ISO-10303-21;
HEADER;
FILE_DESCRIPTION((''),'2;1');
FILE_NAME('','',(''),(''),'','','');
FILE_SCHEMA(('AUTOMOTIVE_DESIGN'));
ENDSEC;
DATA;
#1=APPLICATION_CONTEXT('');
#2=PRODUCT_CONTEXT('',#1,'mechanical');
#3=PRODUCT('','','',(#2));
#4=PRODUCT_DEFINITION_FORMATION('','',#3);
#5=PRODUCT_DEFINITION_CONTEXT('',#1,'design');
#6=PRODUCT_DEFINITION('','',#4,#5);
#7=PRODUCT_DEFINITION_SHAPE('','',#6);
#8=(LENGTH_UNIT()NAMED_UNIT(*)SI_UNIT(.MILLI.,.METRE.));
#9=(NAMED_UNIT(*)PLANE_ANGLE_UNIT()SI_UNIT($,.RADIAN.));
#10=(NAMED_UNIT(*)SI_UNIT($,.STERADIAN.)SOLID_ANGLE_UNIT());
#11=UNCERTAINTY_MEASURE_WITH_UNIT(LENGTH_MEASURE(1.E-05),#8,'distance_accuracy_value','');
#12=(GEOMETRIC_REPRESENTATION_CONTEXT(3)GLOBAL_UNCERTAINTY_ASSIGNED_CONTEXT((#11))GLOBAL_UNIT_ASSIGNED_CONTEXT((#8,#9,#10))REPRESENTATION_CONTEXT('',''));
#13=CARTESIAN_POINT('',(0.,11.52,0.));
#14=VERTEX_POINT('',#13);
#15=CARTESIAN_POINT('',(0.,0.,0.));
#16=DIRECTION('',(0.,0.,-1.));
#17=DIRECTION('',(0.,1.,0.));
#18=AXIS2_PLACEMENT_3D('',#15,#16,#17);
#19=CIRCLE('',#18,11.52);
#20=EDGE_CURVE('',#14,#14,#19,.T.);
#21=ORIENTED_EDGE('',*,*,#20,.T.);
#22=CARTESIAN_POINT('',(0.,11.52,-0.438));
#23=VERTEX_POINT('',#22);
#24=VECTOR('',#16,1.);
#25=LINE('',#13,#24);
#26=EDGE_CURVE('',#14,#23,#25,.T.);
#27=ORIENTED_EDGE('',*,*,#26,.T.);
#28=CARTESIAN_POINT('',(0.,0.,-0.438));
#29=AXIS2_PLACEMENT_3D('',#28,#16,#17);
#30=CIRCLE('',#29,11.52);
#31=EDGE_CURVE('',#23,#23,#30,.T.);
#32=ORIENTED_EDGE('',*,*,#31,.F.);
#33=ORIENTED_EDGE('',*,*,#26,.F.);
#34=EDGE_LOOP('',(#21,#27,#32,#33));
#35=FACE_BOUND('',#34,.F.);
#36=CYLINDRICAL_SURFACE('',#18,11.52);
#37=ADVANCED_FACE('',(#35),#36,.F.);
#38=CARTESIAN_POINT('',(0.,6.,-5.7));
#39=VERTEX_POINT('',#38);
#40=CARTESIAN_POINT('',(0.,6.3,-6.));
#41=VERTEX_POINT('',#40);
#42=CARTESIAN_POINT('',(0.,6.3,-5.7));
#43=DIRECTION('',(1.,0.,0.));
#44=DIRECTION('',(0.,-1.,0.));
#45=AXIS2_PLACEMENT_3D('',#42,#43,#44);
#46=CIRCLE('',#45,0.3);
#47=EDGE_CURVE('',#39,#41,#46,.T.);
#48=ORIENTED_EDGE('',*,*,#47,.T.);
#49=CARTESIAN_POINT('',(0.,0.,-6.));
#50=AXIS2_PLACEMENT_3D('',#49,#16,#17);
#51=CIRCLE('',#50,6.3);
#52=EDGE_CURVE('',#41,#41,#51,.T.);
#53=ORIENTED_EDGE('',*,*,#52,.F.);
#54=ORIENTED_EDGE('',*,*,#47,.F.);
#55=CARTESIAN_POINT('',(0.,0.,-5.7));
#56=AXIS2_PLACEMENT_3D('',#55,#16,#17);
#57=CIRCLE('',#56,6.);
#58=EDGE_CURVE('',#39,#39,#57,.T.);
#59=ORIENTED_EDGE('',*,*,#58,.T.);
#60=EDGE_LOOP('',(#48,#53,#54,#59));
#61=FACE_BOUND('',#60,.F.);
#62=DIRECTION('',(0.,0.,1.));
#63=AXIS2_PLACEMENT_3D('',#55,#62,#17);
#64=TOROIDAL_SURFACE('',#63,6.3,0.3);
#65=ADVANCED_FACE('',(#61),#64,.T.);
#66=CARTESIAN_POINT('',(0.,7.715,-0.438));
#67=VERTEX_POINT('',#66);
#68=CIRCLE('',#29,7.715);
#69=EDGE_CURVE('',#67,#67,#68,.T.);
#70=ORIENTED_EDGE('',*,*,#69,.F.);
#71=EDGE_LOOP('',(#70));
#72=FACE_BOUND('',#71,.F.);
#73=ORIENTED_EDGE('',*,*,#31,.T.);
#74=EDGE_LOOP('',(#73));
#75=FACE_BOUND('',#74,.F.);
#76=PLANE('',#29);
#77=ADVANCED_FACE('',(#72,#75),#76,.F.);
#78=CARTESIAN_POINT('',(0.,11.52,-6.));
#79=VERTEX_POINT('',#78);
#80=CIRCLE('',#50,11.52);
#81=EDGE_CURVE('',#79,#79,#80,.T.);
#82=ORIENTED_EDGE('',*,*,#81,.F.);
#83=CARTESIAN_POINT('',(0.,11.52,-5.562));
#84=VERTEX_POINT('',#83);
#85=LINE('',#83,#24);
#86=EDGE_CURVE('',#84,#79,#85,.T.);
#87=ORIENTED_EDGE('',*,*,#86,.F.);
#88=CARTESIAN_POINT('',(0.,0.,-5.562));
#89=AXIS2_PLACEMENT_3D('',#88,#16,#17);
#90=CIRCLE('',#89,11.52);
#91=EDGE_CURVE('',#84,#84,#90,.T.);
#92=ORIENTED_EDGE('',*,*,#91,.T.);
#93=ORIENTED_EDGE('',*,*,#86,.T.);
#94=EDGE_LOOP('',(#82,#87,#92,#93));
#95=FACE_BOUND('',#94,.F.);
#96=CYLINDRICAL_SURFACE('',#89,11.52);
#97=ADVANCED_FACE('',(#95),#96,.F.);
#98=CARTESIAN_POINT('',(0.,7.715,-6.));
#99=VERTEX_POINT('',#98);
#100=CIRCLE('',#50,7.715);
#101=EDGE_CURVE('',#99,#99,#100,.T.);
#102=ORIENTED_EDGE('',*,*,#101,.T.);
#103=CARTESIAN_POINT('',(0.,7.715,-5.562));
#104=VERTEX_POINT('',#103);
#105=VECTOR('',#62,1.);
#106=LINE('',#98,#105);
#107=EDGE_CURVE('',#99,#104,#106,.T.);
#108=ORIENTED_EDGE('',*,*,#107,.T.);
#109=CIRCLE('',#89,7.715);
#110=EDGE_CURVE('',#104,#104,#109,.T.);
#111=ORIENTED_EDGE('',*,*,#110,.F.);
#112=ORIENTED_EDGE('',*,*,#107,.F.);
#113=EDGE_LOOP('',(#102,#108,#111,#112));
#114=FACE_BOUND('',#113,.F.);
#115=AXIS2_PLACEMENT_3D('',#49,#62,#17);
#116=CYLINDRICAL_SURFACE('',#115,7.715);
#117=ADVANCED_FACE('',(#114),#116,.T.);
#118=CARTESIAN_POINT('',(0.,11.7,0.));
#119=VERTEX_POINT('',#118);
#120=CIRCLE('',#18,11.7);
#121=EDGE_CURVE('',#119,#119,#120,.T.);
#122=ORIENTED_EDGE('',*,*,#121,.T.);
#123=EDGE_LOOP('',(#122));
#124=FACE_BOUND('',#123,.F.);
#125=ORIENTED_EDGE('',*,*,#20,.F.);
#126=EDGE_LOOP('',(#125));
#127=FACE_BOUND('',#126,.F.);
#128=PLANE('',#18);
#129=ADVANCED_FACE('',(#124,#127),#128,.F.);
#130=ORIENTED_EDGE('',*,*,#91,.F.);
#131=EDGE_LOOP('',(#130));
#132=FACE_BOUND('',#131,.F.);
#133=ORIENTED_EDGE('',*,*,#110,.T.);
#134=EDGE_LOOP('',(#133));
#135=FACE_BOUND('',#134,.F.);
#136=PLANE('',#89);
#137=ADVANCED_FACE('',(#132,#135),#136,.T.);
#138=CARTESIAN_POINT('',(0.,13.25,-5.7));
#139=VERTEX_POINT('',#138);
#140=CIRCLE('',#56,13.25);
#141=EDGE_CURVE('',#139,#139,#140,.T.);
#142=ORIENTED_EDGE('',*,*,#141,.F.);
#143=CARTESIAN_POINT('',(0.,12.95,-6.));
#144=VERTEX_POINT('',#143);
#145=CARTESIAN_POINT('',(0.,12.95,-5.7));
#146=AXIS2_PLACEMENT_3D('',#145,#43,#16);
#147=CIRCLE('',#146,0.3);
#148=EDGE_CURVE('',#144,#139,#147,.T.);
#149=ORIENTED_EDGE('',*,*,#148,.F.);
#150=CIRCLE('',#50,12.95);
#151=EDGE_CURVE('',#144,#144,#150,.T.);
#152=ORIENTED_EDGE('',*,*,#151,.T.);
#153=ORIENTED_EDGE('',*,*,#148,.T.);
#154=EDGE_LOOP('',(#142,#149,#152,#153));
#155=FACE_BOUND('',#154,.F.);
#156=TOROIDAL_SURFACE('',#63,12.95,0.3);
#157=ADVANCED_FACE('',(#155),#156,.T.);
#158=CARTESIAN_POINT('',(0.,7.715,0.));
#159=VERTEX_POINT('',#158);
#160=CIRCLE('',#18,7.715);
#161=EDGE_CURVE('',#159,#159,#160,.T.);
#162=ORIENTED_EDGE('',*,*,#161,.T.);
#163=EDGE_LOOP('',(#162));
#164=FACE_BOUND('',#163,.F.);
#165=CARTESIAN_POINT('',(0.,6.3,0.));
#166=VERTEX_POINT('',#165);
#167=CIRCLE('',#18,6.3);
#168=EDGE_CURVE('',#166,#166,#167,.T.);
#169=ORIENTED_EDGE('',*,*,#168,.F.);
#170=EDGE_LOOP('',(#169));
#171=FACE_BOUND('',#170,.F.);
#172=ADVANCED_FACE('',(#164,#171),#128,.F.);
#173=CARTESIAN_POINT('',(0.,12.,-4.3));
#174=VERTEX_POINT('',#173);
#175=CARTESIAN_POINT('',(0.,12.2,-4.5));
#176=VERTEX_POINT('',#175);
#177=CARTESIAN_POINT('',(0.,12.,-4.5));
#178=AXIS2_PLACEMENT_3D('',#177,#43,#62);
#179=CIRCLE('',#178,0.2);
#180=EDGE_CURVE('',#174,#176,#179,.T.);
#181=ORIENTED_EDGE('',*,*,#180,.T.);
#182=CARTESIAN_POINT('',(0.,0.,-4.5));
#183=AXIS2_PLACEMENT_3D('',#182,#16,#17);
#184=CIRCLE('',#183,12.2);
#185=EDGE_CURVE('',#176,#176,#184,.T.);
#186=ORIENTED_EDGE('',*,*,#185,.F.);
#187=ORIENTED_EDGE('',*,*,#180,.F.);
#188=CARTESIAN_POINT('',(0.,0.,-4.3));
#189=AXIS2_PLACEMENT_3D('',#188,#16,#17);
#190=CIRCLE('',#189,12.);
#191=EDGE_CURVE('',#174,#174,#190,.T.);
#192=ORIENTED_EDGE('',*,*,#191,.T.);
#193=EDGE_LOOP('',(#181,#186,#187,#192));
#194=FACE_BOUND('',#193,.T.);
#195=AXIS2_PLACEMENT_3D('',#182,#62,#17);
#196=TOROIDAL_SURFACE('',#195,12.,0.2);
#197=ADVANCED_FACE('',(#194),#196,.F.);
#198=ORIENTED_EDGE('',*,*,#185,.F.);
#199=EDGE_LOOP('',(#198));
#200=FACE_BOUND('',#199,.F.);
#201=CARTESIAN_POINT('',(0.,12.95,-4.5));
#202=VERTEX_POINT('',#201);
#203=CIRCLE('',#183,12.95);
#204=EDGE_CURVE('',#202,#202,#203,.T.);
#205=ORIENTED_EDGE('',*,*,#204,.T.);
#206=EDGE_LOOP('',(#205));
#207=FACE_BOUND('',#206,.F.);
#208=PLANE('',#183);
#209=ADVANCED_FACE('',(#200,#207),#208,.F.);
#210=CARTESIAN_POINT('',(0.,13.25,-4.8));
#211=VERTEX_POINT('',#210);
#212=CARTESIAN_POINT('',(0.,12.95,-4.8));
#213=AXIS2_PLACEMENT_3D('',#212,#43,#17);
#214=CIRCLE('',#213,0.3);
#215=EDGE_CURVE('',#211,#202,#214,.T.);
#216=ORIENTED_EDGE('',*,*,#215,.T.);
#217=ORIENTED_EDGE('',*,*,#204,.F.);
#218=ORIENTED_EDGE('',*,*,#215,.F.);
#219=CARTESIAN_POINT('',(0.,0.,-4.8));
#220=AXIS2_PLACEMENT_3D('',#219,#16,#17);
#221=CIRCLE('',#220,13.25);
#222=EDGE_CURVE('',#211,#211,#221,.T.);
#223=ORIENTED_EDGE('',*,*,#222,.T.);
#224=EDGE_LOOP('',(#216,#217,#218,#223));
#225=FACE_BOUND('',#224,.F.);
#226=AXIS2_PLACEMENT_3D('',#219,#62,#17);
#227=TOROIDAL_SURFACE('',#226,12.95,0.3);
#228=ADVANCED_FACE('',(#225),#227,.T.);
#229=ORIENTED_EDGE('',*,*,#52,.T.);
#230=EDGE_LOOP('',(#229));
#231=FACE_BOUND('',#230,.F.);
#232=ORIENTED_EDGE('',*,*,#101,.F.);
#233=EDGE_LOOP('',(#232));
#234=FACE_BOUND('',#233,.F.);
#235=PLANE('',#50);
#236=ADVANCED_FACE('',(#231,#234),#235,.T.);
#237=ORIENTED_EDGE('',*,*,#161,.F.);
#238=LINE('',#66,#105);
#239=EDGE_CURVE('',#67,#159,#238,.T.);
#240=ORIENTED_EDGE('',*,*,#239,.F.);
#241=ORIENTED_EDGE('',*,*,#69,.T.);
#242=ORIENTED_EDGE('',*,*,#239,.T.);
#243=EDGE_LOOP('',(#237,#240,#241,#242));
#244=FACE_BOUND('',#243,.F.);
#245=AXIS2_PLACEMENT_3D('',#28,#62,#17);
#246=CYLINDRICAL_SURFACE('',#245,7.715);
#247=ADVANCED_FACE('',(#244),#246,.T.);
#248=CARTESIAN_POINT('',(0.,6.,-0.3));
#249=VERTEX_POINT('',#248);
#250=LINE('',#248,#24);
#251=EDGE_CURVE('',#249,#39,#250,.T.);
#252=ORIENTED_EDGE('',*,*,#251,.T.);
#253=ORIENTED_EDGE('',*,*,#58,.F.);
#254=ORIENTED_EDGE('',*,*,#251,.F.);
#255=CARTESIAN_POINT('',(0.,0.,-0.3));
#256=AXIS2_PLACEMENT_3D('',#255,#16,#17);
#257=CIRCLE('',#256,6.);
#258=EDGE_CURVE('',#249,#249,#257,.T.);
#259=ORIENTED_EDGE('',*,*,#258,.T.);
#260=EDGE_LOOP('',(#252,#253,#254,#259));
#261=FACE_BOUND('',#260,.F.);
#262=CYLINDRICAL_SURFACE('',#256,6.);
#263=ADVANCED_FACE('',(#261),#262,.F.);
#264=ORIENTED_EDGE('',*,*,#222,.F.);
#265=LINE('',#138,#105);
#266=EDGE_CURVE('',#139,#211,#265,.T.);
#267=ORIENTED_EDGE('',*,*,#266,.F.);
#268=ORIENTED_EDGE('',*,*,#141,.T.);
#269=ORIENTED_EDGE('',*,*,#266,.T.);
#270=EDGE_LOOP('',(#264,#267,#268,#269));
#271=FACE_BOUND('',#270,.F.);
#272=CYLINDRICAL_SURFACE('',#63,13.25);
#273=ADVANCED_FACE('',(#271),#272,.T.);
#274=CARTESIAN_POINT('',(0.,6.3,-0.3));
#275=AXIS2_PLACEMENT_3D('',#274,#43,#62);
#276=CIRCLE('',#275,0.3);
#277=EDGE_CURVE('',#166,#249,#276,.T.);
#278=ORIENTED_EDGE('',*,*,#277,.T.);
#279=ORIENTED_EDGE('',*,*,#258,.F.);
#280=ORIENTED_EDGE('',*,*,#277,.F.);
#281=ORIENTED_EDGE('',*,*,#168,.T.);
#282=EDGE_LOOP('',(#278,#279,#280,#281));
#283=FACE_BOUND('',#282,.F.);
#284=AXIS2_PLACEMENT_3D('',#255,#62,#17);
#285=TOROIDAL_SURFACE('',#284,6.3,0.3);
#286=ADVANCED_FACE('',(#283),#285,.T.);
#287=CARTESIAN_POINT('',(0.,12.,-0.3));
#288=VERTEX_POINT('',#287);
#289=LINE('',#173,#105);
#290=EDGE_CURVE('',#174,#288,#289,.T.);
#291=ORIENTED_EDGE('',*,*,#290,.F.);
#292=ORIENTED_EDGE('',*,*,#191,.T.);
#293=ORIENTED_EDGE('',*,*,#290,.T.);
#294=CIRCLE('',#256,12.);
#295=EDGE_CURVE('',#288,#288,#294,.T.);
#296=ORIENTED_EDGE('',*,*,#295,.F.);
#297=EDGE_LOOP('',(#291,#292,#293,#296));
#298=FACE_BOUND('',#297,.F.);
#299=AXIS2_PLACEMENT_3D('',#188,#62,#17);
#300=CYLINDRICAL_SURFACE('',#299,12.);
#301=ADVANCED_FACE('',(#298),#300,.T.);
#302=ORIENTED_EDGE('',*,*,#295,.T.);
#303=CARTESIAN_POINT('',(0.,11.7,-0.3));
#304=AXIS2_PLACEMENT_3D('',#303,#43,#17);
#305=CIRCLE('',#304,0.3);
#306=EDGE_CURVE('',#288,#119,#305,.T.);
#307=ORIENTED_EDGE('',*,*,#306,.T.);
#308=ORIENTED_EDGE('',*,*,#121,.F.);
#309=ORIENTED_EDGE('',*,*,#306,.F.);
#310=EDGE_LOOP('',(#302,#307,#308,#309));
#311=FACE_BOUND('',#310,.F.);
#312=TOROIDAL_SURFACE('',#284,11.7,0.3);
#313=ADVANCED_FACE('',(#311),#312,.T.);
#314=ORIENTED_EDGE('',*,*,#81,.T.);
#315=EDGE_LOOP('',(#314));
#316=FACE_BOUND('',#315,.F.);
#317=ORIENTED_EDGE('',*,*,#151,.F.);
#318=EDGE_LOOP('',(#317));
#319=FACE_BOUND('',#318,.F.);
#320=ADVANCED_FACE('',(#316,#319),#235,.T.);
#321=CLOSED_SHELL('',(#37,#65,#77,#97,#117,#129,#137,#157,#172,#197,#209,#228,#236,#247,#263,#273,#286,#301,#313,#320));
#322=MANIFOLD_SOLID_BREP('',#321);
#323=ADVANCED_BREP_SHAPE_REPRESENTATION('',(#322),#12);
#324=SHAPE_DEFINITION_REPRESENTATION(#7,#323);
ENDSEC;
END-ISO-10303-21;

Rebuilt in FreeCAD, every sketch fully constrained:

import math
import FreeCAD as App
import Part
import Sketcher
from FreeCAD import Vector

doc = App.newDocument("Part")
body = doc.addObject("PartDesign::Body", "Body")

# Sketch on YZ plane
sketch1 = doc.addObject("Sketcher::SketchObject", "Sketch")
body.addObject(sketch1)
sketch1.AttachmentSupport = (doc.YZ_Plane, [""])
sketch1.MapMode = "FlatFace"
sketch1.addGeometry([
    Part.ArcOfCircle(Part.Circle(Vector(11.7, -0.3, 0), Vector(0, 0, 1), 0.3), math.radians(0), math.radians(90)),  # 0
    Part.LineSegment(Vector(11.7, 0, 0), Vector(11.52, 0, 0)),  # 1
    Part.LineSegment(Vector(11.52, 0, 0), Vector(11.52, -0.438, 0)),  # 2
    Part.LineSegment(Vector(11.52, -0.438, 0), Vector(7.715, -0.438, 0)),  # 3
    Part.LineSegment(Vector(7.715, -0.438, 0), Vector(7.715, 0, 0)),  # 4
    Part.LineSegment(Vector(7.715, 0, 0), Vector(6.3, 0, 0)),  # 5
    Part.ArcOfCircle(Part.Circle(Vector(6.3, -0.3, 0), Vector(0, 0, 1), 0.3), math.radians(90), math.radians(180)),  # 6
    Part.LineSegment(Vector(6, -0.3, 0), Vector(6, -5.7, 0)),  # 7
    Part.ArcOfCircle(Part.Circle(Vector(6.3, -5.7, 0), Vector(0, 0, 1), 0.3), math.radians(180), math.radians(270)),  # 8
    Part.LineSegment(Vector(6.3, -6, 0), Vector(7.715, -6, 0)),  # 9
    Part.LineSegment(Vector(7.715, -6, 0), Vector(7.715, -5.562, 0)),  # 10
    Part.LineSegment(Vector(7.715, -5.562, 0), Vector(11.52, -5.562, 0)),  # 11
    Part.LineSegment(Vector(11.52, -5.562, 0), Vector(11.52, -6, 0)),  # 12
    Part.LineSegment(Vector(11.52, -6, 0), Vector(12.95, -6, 0)),  # 13
    Part.ArcOfCircle(Part.Circle(Vector(12.95, -5.7, 0), Vector(0, 0, 1), 0.3), math.radians(-90), math.radians(0)),  # 14
    Part.LineSegment(Vector(13.25, -5.7, 0), Vector(13.25, -4.8, 0)),  # 15
    Part.ArcOfCircle(Part.Circle(Vector(12.95, -4.8, 0), Vector(0, 0, 1), 0.3), math.radians(0), math.radians(90)),  # 16
    Part.LineSegment(Vector(12.95, -4.5, 0), Vector(12.2, -4.5, 0)),  # 17
    Part.ArcOfCircle(Part.Circle(Vector(12, -4.5, 0), Vector(0, 0, 1), 0.2), math.radians(90), math.radians(360)),  # 18
    Part.LineSegment(Vector(12, -4.3, 0), Vector(12, -0.3, 0)),  # 19
], False)
sketch1.addConstraint([
    Sketcher.Constraint("Tangent", 0, 2, 1, 1),
    Sketcher.Constraint("Coincident", 1, 2, 2, 1),
    Sketcher.Constraint("Coincident", 2, 2, 3, 1),
    Sketcher.Constraint("Coincident", 3, 2, 4, 1),
    Sketcher.Constraint("Coincident", 4, 2, 5, 1),
    Sketcher.Constraint("Tangent", 5, 2, 6, 1),
    Sketcher.Constraint("Tangent", 6, 2, 7, 1),
    Sketcher.Constraint("Tangent", 7, 2, 8, 1),
    Sketcher.Constraint("Tangent", 8, 2, 9, 1),
    Sketcher.Constraint("Coincident", 9, 2, 10, 1),
    Sketcher.Constraint("Coincident", 10, 2, 11, 1),
    Sketcher.Constraint("Coincident", 11, 2, 12, 1),
    Sketcher.Constraint("Coincident", 12, 2, 13, 1),
    Sketcher.Constraint("Tangent", 13, 2, 14, 1),
    Sketcher.Constraint("Tangent", 14, 2, 15, 1),
    Sketcher.Constraint("Tangent", 15, 2, 16, 1),
    Sketcher.Constraint("Tangent", 16, 2, 17, 1),
    Sketcher.Constraint("Coincident", 17, 2, 18, 2),
    Sketcher.Constraint("Coincident", 18, 1, 19, 1),
    Sketcher.Constraint("Tangent", 19, 2, 0, 1),
    Sketcher.Constraint("Horizontal", 1),
    Sketcher.Constraint("Vertical", 2),
    Sketcher.Constraint("Horizontal", 3),
    Sketcher.Constraint("Vertical", 4),
    Sketcher.Constraint("Horizontal", 5),
    Sketcher.Constraint("Vertical", 7),
    Sketcher.Constraint("Horizontal", 9),
    Sketcher.Constraint("Vertical", 10),
    Sketcher.Constraint("Horizontal", 11),
    Sketcher.Constraint("Vertical", 12),
    Sketcher.Constraint("Horizontal", 13),
    Sketcher.Constraint("Vertical", 15),
    Sketcher.Constraint("Horizontal", 17),
    Sketcher.Constraint("Vertical", 19),
    Sketcher.Constraint("Equal", 0, 6),
    Sketcher.Constraint("Equal", 6, 8),
    Sketcher.Constraint("Equal", 8, 14),
    Sketcher.Constraint("Equal", 14, 16),
    Sketcher.Constraint("PointOnObject", 0, 2, -1),
    Sketcher.Constraint("PointOnObject", 4, 2, -1),
    Sketcher.Constraint("Horizontal", 8, 3, 14, 3),
    Sketcher.Constraint("Horizontal", 18, 3, 16, 2),
    Sketcher.Constraint("Vertical", 4, 2, 9, 2),
    Sketcher.Constraint("Vertical", 2, 2, 11, 2),
    Sketcher.Constraint("Equal", 4, 10),
    Sketcher.Constraint("Radius", 0, 0.3),
    Sketcher.Constraint("Radius", 18, 0.2),
    Sketcher.Constraint("DistanceY", 19, 1, 19, 2, 4.0),
    Sketcher.Constraint("DistanceY", 7, 2, 7, 1, 5.4),
    Sketcher.Constraint("DistanceX", -1, 1, 18, 3, 12.0),
    Sketcher.Constraint("DistanceX", -1, 1, 6, 2, 6.0),
    Sketcher.Constraint("DistanceX", -1, 1, 18, 1, 12.0),
    Sketcher.Constraint("DistanceX", 1, 2, 1, 1, 0.18),
    Sketcher.Constraint("DistanceX", 13, 1, 13, 2, 1.43),
    Sketcher.Constraint("DistanceX", 3, 2, 3, 1, 3.805),
    Sketcher.Constraint("DistanceY", 2, 2, 2, 1, 0.438),
])
revolution = doc.addObject("PartDesign::Revolution", "Revolution")
body.addObject(revolution)
revolution.Profile = sketch1
revolution.ReferenceAxis = (sketch1, ["V_Axis"])
revolution.Angle = 360

doc.recompute()
